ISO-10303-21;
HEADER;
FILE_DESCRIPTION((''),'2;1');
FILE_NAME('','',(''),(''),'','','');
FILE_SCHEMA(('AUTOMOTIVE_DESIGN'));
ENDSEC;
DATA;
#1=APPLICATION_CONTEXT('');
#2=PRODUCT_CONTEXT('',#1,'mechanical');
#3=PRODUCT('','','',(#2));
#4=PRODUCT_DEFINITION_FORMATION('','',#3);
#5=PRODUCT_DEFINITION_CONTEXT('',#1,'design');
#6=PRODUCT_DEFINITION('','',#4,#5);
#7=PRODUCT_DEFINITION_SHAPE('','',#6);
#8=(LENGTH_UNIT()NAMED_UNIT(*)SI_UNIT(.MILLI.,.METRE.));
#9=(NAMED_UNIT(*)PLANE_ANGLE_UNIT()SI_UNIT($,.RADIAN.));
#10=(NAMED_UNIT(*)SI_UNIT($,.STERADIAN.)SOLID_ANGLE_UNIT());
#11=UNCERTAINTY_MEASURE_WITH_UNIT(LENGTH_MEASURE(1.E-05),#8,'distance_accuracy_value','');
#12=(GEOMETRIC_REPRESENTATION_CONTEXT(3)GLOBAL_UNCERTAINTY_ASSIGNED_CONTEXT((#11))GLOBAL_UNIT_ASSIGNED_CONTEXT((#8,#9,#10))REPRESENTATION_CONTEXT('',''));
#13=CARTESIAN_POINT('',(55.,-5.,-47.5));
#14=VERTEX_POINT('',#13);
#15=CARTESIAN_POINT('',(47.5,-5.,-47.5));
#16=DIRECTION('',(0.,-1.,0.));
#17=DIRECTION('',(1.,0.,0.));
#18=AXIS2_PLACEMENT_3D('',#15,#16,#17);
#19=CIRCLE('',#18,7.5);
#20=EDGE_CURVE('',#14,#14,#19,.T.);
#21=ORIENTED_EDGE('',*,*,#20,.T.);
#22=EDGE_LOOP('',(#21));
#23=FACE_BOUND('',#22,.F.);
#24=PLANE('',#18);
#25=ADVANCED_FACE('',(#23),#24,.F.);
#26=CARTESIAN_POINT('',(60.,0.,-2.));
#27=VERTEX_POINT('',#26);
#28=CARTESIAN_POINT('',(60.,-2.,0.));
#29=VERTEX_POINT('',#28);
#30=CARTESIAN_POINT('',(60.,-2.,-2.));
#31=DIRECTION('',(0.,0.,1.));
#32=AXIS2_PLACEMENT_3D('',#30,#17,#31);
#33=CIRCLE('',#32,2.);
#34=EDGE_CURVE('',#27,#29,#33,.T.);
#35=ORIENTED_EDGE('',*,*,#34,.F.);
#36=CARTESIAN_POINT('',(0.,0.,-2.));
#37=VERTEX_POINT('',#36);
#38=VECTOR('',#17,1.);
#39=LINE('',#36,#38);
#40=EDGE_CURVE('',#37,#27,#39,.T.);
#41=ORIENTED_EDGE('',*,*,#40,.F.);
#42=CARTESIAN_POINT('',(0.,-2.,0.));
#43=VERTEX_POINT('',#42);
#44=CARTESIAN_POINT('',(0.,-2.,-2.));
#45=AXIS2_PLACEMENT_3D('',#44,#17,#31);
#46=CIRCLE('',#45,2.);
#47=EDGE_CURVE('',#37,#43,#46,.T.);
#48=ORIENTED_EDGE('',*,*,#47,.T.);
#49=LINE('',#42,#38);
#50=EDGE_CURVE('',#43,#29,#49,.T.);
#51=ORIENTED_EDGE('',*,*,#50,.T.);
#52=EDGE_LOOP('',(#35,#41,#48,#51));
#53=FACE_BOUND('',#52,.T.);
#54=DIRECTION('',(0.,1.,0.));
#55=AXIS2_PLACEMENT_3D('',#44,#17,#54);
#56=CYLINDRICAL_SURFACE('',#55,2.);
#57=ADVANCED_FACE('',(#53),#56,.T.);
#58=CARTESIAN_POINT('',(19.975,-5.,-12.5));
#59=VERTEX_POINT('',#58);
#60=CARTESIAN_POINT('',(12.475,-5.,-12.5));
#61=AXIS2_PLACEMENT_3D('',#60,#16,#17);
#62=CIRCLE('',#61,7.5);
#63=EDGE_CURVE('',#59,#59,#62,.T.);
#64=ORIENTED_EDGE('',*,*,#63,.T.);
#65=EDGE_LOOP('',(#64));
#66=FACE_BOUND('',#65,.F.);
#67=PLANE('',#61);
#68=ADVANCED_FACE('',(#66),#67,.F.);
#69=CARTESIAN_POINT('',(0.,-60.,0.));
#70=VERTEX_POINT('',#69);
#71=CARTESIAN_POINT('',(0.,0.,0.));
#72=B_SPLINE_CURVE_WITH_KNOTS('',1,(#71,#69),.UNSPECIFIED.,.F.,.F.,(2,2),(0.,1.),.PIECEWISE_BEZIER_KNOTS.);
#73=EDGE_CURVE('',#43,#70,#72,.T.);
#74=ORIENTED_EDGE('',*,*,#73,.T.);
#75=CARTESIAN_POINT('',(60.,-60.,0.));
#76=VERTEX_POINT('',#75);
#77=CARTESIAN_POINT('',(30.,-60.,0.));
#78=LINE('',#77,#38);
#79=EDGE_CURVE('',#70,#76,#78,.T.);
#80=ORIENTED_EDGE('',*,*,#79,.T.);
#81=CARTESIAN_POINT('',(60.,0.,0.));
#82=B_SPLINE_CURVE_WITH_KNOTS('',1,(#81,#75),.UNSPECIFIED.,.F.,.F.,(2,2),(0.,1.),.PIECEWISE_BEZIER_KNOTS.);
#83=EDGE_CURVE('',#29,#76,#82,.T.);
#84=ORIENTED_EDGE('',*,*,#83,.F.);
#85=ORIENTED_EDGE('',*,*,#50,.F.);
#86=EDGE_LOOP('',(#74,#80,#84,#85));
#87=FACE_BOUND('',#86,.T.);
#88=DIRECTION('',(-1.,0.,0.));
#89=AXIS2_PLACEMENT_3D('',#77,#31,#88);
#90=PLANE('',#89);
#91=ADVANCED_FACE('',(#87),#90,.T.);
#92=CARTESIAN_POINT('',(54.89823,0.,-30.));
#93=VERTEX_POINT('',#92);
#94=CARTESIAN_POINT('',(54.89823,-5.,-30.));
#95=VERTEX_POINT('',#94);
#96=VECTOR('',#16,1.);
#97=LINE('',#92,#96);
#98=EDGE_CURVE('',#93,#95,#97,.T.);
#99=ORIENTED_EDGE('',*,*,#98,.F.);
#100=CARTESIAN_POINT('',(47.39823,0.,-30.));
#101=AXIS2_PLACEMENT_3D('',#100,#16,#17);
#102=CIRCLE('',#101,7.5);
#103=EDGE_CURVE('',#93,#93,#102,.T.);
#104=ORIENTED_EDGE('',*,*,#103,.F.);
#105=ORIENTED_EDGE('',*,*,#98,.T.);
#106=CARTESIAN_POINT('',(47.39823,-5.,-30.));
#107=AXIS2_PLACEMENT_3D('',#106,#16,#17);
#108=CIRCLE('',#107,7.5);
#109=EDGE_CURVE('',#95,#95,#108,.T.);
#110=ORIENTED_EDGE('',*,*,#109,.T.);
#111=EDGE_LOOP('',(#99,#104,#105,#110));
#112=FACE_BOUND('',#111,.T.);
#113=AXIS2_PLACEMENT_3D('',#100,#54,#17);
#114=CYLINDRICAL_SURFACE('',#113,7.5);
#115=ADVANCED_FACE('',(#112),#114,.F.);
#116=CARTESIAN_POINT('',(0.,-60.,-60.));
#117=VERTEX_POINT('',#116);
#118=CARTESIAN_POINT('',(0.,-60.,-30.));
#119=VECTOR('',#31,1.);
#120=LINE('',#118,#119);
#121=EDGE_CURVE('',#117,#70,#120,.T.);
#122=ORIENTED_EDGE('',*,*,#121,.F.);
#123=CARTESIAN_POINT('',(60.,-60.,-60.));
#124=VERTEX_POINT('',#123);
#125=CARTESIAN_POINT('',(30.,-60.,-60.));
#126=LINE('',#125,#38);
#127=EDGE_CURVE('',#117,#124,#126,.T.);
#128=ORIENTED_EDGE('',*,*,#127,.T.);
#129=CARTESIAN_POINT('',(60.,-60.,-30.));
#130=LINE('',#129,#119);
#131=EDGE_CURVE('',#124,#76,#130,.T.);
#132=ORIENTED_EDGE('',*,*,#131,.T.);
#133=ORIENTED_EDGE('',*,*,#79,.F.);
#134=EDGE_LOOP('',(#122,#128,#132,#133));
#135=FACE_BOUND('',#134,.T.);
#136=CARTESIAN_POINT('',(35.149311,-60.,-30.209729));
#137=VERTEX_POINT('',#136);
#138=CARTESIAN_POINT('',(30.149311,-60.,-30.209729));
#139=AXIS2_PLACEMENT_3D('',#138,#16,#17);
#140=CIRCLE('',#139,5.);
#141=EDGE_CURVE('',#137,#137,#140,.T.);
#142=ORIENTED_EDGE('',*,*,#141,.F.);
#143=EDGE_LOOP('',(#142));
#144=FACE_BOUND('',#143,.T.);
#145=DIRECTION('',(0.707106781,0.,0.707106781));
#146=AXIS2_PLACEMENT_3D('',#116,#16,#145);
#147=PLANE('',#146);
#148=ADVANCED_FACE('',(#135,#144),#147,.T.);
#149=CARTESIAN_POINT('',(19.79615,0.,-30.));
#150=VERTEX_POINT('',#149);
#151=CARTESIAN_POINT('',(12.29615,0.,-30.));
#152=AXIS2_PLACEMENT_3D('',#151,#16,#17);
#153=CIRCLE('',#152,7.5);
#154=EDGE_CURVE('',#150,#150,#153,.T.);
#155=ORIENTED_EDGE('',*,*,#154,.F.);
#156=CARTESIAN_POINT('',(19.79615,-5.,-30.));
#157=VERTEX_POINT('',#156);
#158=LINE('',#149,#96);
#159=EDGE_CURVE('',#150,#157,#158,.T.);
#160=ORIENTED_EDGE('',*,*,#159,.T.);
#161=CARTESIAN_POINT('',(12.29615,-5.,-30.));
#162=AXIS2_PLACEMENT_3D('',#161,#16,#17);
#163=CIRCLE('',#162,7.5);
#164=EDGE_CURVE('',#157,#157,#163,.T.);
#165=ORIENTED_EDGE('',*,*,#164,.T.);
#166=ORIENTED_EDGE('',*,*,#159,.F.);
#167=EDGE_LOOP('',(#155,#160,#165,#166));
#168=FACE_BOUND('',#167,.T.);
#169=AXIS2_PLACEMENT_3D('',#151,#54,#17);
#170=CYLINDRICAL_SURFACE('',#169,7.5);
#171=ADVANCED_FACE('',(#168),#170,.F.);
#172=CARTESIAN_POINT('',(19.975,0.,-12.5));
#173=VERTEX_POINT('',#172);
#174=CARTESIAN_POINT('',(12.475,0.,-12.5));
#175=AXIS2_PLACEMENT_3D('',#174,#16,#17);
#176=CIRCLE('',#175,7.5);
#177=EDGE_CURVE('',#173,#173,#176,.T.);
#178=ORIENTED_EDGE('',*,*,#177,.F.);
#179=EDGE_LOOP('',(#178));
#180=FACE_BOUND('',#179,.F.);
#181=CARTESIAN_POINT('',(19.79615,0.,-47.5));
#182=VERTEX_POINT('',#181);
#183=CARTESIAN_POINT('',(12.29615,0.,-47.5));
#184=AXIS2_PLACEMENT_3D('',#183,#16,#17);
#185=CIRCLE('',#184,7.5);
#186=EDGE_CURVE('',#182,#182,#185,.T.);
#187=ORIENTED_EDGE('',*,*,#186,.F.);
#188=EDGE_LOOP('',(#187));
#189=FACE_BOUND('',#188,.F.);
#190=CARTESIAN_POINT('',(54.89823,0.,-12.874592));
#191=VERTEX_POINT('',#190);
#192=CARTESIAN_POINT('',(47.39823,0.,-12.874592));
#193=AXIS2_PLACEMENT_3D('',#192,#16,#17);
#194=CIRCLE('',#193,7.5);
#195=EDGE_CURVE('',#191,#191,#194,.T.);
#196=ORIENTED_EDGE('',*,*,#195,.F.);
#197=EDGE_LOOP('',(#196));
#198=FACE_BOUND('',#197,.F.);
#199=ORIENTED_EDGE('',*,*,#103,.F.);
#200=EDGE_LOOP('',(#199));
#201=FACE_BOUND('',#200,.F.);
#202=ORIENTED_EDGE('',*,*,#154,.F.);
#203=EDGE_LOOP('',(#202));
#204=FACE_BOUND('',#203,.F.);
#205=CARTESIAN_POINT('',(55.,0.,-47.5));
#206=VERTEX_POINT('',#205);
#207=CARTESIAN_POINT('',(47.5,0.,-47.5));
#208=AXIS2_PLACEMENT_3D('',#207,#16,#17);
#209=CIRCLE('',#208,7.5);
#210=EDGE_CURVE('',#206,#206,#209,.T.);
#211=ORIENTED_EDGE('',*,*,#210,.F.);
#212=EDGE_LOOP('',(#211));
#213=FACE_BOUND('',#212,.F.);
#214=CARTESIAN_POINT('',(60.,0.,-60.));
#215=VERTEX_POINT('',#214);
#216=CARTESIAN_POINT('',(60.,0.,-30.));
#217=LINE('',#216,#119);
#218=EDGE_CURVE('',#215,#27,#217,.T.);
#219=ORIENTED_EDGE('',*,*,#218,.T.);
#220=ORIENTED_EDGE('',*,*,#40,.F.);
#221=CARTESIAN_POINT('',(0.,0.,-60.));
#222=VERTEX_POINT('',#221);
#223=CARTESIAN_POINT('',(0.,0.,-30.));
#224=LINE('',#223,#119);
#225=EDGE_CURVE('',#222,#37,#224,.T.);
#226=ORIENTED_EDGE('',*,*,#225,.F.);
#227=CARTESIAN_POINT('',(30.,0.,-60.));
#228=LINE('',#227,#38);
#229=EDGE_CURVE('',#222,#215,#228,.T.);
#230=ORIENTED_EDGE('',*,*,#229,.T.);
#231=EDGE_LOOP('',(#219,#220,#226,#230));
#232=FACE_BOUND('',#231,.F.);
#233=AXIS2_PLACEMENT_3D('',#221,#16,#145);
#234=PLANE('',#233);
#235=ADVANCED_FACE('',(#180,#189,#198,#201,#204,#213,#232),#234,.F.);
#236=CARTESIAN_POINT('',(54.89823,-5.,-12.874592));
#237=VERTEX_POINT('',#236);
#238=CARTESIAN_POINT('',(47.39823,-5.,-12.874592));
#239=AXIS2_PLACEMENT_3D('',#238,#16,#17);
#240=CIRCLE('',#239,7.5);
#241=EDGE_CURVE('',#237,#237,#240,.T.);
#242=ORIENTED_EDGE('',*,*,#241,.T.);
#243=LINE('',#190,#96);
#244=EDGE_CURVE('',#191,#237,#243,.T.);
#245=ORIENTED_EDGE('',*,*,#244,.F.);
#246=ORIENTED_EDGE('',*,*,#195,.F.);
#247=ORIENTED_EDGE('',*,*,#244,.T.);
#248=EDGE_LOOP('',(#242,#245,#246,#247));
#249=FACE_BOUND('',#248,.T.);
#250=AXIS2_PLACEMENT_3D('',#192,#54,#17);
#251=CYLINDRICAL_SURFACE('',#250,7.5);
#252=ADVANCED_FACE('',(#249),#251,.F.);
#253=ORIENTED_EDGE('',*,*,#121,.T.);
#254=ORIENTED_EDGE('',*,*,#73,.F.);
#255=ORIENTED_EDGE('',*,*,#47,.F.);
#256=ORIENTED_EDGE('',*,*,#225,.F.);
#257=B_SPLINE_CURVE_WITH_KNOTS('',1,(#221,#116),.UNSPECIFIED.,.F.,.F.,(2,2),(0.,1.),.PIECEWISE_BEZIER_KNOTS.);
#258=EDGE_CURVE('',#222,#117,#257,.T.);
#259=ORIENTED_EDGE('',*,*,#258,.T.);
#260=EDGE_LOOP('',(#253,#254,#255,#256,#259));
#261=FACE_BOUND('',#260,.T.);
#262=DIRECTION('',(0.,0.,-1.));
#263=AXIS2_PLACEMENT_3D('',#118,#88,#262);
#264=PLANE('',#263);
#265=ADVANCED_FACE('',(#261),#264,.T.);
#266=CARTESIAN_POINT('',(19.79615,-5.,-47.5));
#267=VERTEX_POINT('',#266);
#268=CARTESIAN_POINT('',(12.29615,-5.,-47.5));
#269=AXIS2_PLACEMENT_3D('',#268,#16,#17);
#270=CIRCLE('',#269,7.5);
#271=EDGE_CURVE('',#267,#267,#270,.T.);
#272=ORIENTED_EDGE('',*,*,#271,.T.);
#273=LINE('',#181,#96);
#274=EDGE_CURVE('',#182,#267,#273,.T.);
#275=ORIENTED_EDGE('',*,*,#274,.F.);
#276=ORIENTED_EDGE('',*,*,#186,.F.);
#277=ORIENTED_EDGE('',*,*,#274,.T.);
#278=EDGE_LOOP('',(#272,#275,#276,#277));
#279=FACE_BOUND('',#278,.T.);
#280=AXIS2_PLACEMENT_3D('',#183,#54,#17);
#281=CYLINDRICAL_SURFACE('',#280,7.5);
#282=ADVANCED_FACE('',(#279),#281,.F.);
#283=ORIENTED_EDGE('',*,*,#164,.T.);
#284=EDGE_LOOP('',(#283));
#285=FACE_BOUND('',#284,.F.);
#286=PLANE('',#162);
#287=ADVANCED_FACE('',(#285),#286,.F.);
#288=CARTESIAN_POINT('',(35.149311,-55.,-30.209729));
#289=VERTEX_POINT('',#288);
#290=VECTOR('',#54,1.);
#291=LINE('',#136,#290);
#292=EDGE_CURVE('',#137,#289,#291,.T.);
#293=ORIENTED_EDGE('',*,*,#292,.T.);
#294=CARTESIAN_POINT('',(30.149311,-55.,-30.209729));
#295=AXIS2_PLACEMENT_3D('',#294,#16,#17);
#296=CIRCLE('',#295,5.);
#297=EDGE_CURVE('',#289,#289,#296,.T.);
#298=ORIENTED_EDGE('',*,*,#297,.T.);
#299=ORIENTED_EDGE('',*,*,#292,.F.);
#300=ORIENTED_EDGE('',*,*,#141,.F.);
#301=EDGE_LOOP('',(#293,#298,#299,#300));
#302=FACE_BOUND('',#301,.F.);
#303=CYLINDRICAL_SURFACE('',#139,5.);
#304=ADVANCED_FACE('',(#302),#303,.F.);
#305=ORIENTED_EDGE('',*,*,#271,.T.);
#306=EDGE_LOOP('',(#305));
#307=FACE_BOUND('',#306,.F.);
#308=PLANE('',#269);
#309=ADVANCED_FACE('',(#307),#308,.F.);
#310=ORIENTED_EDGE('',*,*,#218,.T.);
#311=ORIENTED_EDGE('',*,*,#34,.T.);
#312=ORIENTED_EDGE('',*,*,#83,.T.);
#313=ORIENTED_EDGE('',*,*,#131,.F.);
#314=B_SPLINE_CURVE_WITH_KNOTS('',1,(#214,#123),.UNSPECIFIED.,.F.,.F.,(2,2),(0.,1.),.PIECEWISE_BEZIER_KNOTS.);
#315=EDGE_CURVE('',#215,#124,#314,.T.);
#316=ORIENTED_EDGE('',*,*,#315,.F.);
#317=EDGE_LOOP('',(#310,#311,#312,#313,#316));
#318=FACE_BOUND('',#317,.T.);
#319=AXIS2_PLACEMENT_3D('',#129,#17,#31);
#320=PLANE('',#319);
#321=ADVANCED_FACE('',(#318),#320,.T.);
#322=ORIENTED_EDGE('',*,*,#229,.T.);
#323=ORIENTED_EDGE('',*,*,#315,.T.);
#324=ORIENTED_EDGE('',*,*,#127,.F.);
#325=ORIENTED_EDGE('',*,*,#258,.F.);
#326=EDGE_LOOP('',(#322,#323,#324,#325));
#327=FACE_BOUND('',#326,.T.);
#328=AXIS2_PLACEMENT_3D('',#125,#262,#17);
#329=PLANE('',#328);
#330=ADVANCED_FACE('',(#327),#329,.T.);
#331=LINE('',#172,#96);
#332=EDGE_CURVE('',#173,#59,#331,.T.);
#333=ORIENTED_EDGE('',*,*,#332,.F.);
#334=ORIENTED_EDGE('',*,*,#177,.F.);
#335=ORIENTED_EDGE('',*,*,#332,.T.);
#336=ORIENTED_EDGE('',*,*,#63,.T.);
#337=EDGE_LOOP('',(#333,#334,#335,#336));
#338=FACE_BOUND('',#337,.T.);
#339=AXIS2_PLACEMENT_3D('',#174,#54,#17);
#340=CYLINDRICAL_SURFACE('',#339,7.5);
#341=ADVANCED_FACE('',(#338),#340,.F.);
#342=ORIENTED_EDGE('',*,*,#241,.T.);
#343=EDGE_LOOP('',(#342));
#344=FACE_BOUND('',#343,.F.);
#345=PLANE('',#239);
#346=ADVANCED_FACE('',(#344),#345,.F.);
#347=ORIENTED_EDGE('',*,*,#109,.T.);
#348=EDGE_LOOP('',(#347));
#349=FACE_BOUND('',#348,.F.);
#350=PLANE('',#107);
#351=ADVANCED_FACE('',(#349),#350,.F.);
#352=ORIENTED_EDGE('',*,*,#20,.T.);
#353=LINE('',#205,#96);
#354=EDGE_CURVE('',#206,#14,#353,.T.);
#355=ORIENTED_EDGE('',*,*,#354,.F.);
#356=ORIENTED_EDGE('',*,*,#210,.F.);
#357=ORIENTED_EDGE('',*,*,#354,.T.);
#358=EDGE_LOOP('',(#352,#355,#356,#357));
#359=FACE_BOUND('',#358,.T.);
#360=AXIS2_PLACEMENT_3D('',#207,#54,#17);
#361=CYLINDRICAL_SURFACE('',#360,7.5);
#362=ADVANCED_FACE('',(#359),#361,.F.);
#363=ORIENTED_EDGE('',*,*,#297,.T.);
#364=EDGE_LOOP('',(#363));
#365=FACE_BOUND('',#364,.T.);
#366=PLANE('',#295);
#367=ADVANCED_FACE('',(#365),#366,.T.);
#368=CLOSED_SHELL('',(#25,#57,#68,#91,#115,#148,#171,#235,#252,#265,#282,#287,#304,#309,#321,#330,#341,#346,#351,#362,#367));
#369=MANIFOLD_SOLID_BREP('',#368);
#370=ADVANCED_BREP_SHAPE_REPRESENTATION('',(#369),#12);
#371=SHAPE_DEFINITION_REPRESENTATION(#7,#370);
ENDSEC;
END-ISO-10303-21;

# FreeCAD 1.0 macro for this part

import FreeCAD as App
import Part
import Sketcher

V = App.Vector
Q = App.Units.Quantity


def edges_at(feature, points):
    """Names of the edges that pass closest to the given points."""
    edges = feature.Shape.Edges
    near = lambda p: min(range(len(edges)), key=lambda i: edges[i].distToShape(Part.Vertex(*p))[0])
    return sorted({f"Edge{near(p) + 1}" for p in points})


def add_polygon(sketch, points):
    """Adds a closed chain of lines whose ends are joined by coincident constraints."""
    first, n = sketch.GeometryCount, len(points)
    for a, b in zip(points, points[1:] + points[:1]):
        sketch.addGeometry(Part.LineSegment(App.Vector(*a, 0), App.Vector(*b, 0)), False)
    for i in range(n):
        sketch.addConstraint(Sketcher.Constraint("Coincident", first + i, 2, first + (i + 1) % n, 1))

doc = App.newDocument("Part")
params = doc.addObject("Spreadsheet::Sheet", "Params")
for row, (alias, value) in enumerate([
    ("sketch1_width", "60 mm"),
    ("sketch2_width", "60 mm"),
    ("sketch3_diameter", "10 mm"),
    ("pocket1_length", "5 mm"),
    ("sketch4_diameter", "15 mm"),
    ("pocket2_length", "5 mm"),
    ("fillet_radius", "2 mm"),
], start=1):
    params.set(f"A{row}", alias)
    params.set(f"B{row}", "=" + value)
    params.setAlias(f"B{row}", alias)

body = doc.addObject("PartDesign::Body", "Body")

# Sketch on XZ plane
sketch1 = body.newObject("Sketcher::SketchObject", "Sketch")
sketch1.AttachmentSupport = (doc.getObject("XZ_Plane"), [""])
sketch1.MapMode = "FlatFace"
add_polygon(sketch1, [(0, 0), (0, -60), (60, -60), (60, 0)])  # lines 0-3
sketch1.addConstraint(Sketcher.Constraint("Vertical", 0))
sketch1.addConstraint(Sketcher.Constraint("Horizontal", 1))
sketch1.addConstraint(Sketcher.Constraint("Vertical", 2))
sketch1.addConstraint(Sketcher.Constraint("Horizontal", 3))
sketch1.addConstraint(Sketcher.Constraint("Coincident", 3, 2, -1, 1))
sketch1.addConstraint(Sketcher.Constraint("Equal", 3, 0))
sketch1.addConstraint(Sketcher.Constraint("DistanceX", 1, 1, 1, 2, Q("60 mm")))
sketch1.setExpression("Constraints[10]", "Params.sketch1_width")

# Sketch on XZ plane
sketch2 = body.newObject("Sketcher::SketchObject", "Sketch001")
sketch2.AttachmentSupport = (doc.getObject("XZ_Plane"), [""])
sketch2.MapMode = "FlatFace"
sketch2.AttachmentOffset = App.Placement(V(0, 0, 60), App.Rotation())
add_polygon(sketch2, [(0, 0), (0, -60), (60, -60), (60, 0)])  # lines 0-3
sketch2.addConstraint(Sketcher.Constraint("Vertical", 0))
sketch2.addConstraint(Sketcher.Constraint("Horizontal", 1))
sketch2.addConstraint(Sketcher.Constraint("Vertical", 2))
sketch2.addConstraint(Sketcher.Constraint("Horizontal", 3))
sketch2.addConstraint(Sketcher.Constraint("Coincident", 3, 2, -1, 1))
sketch2.addConstraint(Sketcher.Constraint("Equal", 3, 0))
sketch2.addConstraint(Sketcher.Constraint("DistanceX", 1, 1, 1, 2, Q("60 mm")))
sketch2.setExpression("Constraints[10]", "Params.sketch2_width")

additiveloft = body.newObject("PartDesign::AdditiveLoft", "AdditiveLoft")
additiveloft.Profile = sketch1
additiveloft.Sections = [sketch2]

# Sketch on XZ plane
sketch3 = body.newObject("Sketcher::SketchObject", "Sketch002")
sketch3.AttachmentSupport = (doc.getObject("XZ_Plane"), [""])
sketch3.MapMode = "FlatFace"
sketch3.AttachmentOffset = App.Placement(V(0, 0, 60), App.Rotation())
sketch3.addGeometry(Part.Circle(V(30.149311, -30.209729, 0), V(0, 0, 1), 5), False)
sketch3.addConstraint(Sketcher.Constraint("Diameter", 0, Q("10 mm")))
sketch3.addConstraint(Sketcher.Constraint("DistanceX", -1, 1, 0, 3, Q("30.149311 mm")))
sketch3.addConstraint(Sketcher.Constraint("DistanceY", 0, 3, -1, 1, Q("30.209729 mm")))
sketch3.setExpression("Constraints[0]", "Params.sketch3_diameter")
pocket1 = body.newObject("PartDesign::Pocket", "Pocket")
pocket1.Profile = sketch3
pocket1.setExpression("Length", "Params.pocket1_length")

# Sketch on XZ plane
sketch4 = body.newObject("Sketcher::SketchObject", "Sketch003")
sketch4.AttachmentSupport = (doc.getObject("XZ_Plane"), [""])
sketch4.MapMode = "FlatFace"
sketch4.addGeometry(Part.Circle(V(47.39823, -12.874592, 0), V(0, 0, 1), 7.5), False)
sketch4.addGeometry(Part.Circle(V(12.475, -12.5, 0), V(0, 0, 1), 7.5), False)
sketch4.addGeometry(Part.Circle(V(47.39823, -30, 0), V(0, 0, 1), 7.5), False)
sketch4.addGeometry(Part.Circle(V(12.29615, -30, 0), V(0, 0, 1), 7.5), False)
sketch4.addGeometry(Part.Circle(V(47.5, -47.5, 0), V(0, 0, 1), 7.5), False)
sketch4.addGeometry(Part.Circle(V(12.29615, -47.5, 0), V(0, 0, 1), 7.5), False)
sketch4.addConstraint(Sketcher.Constraint("Equal", 0, 1))
sketch4.addConstraint(Sketcher.Constraint("Equal", 1, 2))
sketch4.addConstraint(Sketcher.Constraint("Equal", 2, 3))
sketch4.addConstraint(Sketcher.Constraint("Equal", 3, 4))
sketch4.addConstraint(Sketcher.Constraint("Equal", 4, 5))
sketch4.addConstraint(Sketcher.Constraint("Horizontal", 2, 3, 3, 3))
sketch4.addConstraint(Sketcher.Constraint("Horizontal", 4, 3, 5, 3))
sketch4.addConstraint(Sketcher.Constraint("Vertical", 0, 3, 2, 3))
sketch4.addConstraint(Sketcher.Constraint("Vertical", 3, 3, 5, 3))
sketch4.addConstraint(Sketcher.Constraint("Diameter", 0, Q("15 mm")))
sketch4.addConstraint(Sketcher.Constraint("DistanceY", 2, 3, -1, 1, Q("30 mm")))
sketch4.addConstraint(Sketcher.Constraint("DistanceY", 4, 3, 1, 3, Q("35 mm")))
sketch4.addConstraint(Sketcher.Constraint("DistanceY", 1, 3, -1, 1, Q("12.5 mm")))
sketch4.addConstraint(Sketcher.Constraint("DistanceX", -1, 1, 4, 3, Q("47.5 mm")))
sketch4.addConstraint(Sketcher.Constraint("DistanceX", -1, 1, 1, 3, Q("12.475 mm")))
sketch4.addConstraint(Sketcher.Constraint("DistanceX", -1, 1, 0, 3, Q("47.39823 mm")))
sketch4.addConstraint(Sketcher.Constraint("DistanceY", 0, 3, -1, 1, Q("12.874592 mm")))
sketch4.addConstraint(Sketcher.Constraint("DistanceX", -1, 1, 3, 3, Q("12.29615 mm")))
sketch4.setExpression("Constraints[9]", "Params.sketch4_diameter")
pocket2 = body.newObject("PartDesign::Pocket", "Pocket001")
pocket2.Profile = sketch4
pocket2.setExpression("Length", "Params.pocket2_length")
pocket2.Reversed = True
doc.recompute()

fillet = body.newObject("PartDesign::Fillet", "Fillet")
fillet.Base = (pocket2, edges_at(pocket2, [(30, 0, 0)]))
fillet.setExpression("Radius", "Params.fillet_radius")

doc.recompute()
